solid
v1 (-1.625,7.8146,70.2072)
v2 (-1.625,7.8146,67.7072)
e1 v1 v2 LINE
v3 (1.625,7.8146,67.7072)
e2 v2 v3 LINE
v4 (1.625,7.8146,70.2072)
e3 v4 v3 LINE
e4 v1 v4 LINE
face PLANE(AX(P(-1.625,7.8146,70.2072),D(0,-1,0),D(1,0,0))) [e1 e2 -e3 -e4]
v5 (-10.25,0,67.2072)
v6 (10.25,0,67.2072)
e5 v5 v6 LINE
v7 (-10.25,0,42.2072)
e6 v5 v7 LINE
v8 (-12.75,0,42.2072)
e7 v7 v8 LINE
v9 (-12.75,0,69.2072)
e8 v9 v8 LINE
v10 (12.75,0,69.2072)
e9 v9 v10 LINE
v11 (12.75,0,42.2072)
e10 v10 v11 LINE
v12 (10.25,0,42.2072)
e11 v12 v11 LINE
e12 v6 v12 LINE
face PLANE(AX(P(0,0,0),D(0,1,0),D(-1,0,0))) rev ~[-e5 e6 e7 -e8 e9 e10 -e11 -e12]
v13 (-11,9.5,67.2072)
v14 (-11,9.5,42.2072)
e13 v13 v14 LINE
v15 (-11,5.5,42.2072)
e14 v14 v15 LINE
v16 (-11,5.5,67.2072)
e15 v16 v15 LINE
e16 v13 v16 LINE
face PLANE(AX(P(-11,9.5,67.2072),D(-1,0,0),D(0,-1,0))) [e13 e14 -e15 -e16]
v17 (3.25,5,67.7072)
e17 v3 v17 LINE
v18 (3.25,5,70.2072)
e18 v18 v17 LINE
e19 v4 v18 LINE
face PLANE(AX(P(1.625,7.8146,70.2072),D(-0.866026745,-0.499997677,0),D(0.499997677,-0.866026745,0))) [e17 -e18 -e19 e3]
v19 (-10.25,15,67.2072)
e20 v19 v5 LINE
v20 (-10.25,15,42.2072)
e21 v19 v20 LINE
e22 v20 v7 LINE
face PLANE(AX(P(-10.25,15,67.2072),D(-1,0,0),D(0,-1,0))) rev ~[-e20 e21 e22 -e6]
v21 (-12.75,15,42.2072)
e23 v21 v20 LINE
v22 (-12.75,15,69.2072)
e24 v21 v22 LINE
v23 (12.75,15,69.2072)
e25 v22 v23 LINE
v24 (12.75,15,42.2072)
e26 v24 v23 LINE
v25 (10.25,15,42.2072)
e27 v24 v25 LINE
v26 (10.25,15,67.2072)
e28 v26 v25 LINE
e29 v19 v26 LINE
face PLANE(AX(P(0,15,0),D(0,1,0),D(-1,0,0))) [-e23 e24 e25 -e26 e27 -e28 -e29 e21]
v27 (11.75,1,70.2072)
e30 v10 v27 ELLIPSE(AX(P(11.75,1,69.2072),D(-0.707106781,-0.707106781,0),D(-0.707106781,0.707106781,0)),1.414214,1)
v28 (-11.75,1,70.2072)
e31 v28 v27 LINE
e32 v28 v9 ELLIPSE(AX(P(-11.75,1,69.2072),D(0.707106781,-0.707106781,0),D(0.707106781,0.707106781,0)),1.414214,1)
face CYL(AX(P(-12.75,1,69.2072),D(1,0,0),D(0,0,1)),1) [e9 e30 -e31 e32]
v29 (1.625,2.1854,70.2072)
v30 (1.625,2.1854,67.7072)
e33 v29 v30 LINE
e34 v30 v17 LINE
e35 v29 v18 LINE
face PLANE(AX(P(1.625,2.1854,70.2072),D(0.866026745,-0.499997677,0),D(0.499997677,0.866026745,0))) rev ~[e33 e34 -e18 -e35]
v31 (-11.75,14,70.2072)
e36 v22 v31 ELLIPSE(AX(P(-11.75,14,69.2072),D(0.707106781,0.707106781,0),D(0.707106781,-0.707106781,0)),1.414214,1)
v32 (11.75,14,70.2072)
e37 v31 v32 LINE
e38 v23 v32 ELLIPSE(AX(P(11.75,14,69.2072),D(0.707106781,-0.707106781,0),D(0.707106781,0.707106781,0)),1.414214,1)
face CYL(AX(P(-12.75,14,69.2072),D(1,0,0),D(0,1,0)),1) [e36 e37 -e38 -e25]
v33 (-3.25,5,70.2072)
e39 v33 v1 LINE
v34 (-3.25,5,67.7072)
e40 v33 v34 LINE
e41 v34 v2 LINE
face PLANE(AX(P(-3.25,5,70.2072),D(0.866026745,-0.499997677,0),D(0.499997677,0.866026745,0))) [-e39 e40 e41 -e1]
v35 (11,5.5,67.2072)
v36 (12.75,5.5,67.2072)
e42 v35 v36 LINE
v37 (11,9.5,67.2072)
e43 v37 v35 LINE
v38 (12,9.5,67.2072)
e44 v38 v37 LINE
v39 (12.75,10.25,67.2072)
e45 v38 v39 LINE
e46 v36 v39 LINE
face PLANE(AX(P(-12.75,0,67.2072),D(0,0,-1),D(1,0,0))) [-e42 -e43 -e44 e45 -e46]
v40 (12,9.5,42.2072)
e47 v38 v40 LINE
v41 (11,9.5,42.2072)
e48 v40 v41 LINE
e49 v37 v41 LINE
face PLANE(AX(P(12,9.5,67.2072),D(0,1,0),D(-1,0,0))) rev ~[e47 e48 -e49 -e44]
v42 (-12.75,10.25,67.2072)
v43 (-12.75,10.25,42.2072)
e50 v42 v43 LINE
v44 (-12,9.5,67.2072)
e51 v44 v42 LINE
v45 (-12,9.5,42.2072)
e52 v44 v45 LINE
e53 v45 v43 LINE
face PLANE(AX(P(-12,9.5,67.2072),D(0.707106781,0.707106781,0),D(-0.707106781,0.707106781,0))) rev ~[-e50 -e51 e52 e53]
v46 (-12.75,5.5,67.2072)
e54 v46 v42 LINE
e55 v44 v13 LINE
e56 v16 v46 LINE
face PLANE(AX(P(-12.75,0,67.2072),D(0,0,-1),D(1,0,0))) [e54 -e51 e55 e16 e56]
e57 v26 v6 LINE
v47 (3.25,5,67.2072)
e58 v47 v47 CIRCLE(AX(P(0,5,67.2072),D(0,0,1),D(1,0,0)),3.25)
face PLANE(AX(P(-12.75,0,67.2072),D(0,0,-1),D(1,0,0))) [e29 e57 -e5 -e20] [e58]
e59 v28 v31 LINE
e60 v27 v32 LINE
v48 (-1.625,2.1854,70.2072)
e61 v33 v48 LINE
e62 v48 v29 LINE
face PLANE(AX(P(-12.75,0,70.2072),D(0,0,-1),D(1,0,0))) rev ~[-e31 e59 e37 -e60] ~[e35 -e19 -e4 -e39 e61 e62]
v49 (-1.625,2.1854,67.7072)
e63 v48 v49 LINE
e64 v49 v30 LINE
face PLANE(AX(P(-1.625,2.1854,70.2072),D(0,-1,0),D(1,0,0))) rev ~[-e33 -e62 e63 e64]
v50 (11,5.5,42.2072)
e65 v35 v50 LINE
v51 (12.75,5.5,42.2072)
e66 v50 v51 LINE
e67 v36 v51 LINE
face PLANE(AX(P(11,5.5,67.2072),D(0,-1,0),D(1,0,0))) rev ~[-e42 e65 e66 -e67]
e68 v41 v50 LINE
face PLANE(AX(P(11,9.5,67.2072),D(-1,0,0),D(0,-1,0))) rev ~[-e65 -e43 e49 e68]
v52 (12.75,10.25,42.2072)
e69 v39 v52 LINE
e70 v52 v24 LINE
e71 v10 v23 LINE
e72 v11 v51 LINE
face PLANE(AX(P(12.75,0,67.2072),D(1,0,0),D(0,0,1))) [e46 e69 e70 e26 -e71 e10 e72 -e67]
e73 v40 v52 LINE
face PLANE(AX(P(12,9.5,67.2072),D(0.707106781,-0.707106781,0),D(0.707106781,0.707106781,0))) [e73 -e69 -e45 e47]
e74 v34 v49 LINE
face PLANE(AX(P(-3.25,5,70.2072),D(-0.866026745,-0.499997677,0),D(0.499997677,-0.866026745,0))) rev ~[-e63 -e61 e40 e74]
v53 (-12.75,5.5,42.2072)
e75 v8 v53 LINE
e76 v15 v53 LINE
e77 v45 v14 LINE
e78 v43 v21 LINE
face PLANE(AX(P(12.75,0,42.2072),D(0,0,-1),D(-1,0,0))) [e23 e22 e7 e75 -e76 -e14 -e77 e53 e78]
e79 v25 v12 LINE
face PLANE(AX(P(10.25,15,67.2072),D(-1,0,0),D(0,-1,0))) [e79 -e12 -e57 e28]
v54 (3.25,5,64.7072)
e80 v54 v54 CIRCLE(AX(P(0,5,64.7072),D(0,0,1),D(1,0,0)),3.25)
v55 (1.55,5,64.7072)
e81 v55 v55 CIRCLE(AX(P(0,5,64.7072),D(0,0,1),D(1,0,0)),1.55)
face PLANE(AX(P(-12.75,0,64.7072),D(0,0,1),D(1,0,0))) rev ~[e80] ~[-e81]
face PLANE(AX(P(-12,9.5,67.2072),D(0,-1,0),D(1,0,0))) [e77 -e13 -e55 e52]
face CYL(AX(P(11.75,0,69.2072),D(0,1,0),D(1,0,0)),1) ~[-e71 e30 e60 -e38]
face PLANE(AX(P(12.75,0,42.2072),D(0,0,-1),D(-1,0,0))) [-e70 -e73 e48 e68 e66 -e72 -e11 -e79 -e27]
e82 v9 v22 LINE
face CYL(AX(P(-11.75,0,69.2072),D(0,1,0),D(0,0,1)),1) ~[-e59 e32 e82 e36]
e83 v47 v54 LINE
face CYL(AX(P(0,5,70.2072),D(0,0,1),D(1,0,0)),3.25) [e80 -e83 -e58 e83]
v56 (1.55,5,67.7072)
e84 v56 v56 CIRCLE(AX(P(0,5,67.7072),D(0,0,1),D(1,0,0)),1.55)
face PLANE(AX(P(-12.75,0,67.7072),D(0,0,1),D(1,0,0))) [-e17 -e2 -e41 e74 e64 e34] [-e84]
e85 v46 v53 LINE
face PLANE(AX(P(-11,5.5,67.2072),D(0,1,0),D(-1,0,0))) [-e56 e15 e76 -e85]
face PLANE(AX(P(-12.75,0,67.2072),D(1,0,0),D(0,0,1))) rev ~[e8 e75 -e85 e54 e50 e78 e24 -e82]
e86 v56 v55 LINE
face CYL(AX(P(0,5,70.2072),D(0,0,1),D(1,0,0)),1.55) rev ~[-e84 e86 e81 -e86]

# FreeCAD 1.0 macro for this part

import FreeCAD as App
import Part
import Sketcher

V = App.Vector
Q = App.Units.Quantity


def edges_at(feature, points):
    """Names of the edges that pass closest to the given points."""
    edges = feature.Shape.Edges
    near = lambda p: min(range(len(edges)), key=lambda i: edges[i].distToShape(Part.Vertex(*p))[0])
    return sorted({f"Edge{near(p) + 1}" for p in points})

doc = App.newDocument("Part")
params = doc.addObject("Spreadsheet::Sheet", "Params")
for row, (alias, value) in enumerate([
    ("sketch1_height", "3 mm"),
    ("sketch1_width", "25.5 mm"),
    ("pad1_length", "15 mm"),
    ("sketch2_height", "5.5 mm"),
    ("sketch2_width", "1 mm"),
    ("sketch2_height2", "4 mm"),
    ("sketch2_width2", "2.5 mm"),
    ("pad2_length", "25 mm"),
    ("sketch3_diameter", "6.5 mm"),
    ("pad3_length", "5.5 mm"),
    ("sketch4_diameter", "3.1 mm"),
    ("pocket1_length", "5.5 mm"),
    ("sketch5_diameter", "3.1 mm"),
    ("sketch5_width", "3.25 mm"),
    ("pocket2_length", "2.5 mm"),
    ("fillet_radius", "1 mm"),
], start=1):
    params.set(f"A{row}", alias)
    params.set(f"B{row}", "=" + value)
    params.setAlias(f"B{row}", alias)

body = doc.addObject("PartDesign::Body", "Body")

# Sketch on XZ plane
sketch1 = doc.addObject("Sketcher::SketchObject", "Sketch")
body.addObject(sketch1)
sketch1.AttachmentSupport = (doc.XZ_Plane, [""])
sketch1.MapMode = "FlatFace"
sketch1.addGeometry(Part.LineSegment(V(12.75, 70.2072, 0), V(12.75, 67.2072, 0)), False)
sketch1.addGeometry(Part.LineSegment(V(12.75, 67.2072, 0), V(-12.75, 67.2072, 0)), False)
sketch1.addGeometry(Part.LineSegment(V(-12.75, 67.2072, 0), V(-12.75, 70.2072, 0)), False)
sketch1.addGeometry(Part.LineSegment(V(-12.75, 70.2072, 0), V(12.75, 70.2072, 0)), False)
sketch1.addConstraint(Sketcher.Constraint("Coincident", 0, 2, 1, 1))
sketch1.addConstraint(Sketcher.Constraint("Coincident", 1, 2, 2, 1))
sketch1.addConstraint(Sketcher.Constraint("Coincident", 2, 2, 3, 1))
sketch1.addConstraint(Sketcher.Constraint("Coincident", 3, 2, 0, 1))
sketch1.addConstraint(Sketcher.Constraint("Vertical", 0))
sketch1.addConstraint(Sketcher.Constraint("Horizontal", 1))
sketch1.addConstraint(Sketcher.Constraint("Vertical", 2))
sketch1.addConstraint(Sketcher.Constraint("Horizontal", 3))
sketch1.addConstraint(Sketcher.Constraint("DistanceY", 0, 2, 0, 1, Q("3 mm")))
sketch1.addConstraint(Sketcher.Constraint("DistanceX", 1, 2, 1, 1, Q("25.5 mm")))
sketch1.addConstraint(Sketcher.Constraint("DistanceX", -1, 1, 0, 2, Q("12.75 mm")))
sketch1.addConstraint(Sketcher.Constraint("DistanceY", -1, 1, 0, 2, Q("67.2072 mm")))
sketch1.setExpression("Constraints[8]", "Params.sketch1_height")
sketch1.setExpression("Constraints[9]", "Params.sketch1_width")
pad1 = doc.addObject("PartDesign::Pad", "Pad")
body.addObject(pad1)
pad1.Profile = sketch1
pad1.setExpression("Length", "Params.pad1_length")
pad1.Reversed = True

# Sketch on XY plane
sketch2 = doc.addObject("Sketcher::SketchObject", "Sketch001")
body.addObject(sketch2)
sketch2.AttachmentSupport = (doc.XY_Plane, [""])
sketch2.MapMode = "FlatFace"
sketch2.AttachmentOffset = App.Placement(V(0, 0, 67.2072), App.Rotation())
sketch2.addGeometry(Part.LineSegment(V(10.25, 15, 0), V(12.75, 15, 0)), False)
sketch2.addGeometry(Part.LineSegment(V(12.75, 15, 0), V(12.75, 10.25, 0)), False)
sketch2.addGeometry(Part.LineSegment(V(12.75, 10.25, 0), V(12, 9.5, 0)), False)
sketch2.addGeometry(Part.LineSegment(V(12, 9.5, 0), V(11, 9.5, 0)), False)
sketch2.addGeometry(Part.LineSegment(V(11, 9.5, 0), V(11, 5.5, 0)), False)
sketch2.addGeometry(Part.LineSegment(V(11, 5.5, 0), V(12.75, 5.5, 0)), False)
sketch2.addGeometry(Part.LineSegment(V(12.75, 5.5, 0), V(12.75, 0, 0)), False)
sketch2.addGeometry(Part.LineSegment(V(12.75, 0, 0), V(10.25, 0, 0)), False)
sketch2.addGeometry(Part.LineSegment(V(10.25, 0, 0), V(10.25, 15, 0)), False)
sketch2.addGeometry(Part.LineSegment(V(-12.75, 10.25, 0), V(-12.75, 15, 0)), False)
sketch2.addGeometry(Part.LineSegment(V(-12.75, 15, 0), V(-10.25, 15, 0)), False)
sketch2.addGeometry(Part.LineSegment(V(-10.25, 15, 0), V(-10.25, 0, 0)), False)
sketch2.addGeometry(Part.LineSegment(V(-10.25, 0, 0), V(-12.75, 0, 0)), False)
sketch2.addGeometry(Part.LineSegment(V(-12.75, 0, 0), V(-12.75, 5.5, 0)), False)
sketch2.addGeometry(Part.LineSegment(V(-12.75, 5.5, 0), V(-11, 5.5, 0)), False)
sketch2.addGeometry(Part.LineSegment(V(-11, 5.5, 0), V(-11, 9.5, 0)), False)
sketch2.addGeometry(Part.LineSegment(V(-11, 9.5, 0), V(-12, 9.5, 0)), False)
sketch2.addGeometry(Part.LineSegment(V(-12, 9.5, 0), V(-12.75, 10.25, 0)), False)
sketch2.addConstraint(Sketcher.Constraint("Coincident", 0, 2, 1, 1))
sketch2.addConstraint(Sketcher.Constraint("Coincident", 1, 2, 2, 1))
sketch2.addConstraint(Sketcher.Constraint("Coincident", 2, 2, 3, 1))
sketch2.addConstraint(Sketcher.Constraint("Coincident", 3, 2, 4, 1))
sketch2.addConstraint(Sketcher.Constraint("Coincident", 4, 2, 5, 1))
sketch2.addConstraint(Sketcher.Constraint("Coincident", 5, 2, 6, 1))
sketch2.addConstraint(Sketcher.Constraint("Coincident", 6, 2, 7, 1))
sketch2.addConstraint(Sketcher.Constraint("Coincident", 7, 2, 8, 1))
sketch2.addConstraint(Sketcher.Constraint("Coincident", 8, 2, 0, 1))
sketch2.addConstraint(Sketcher.Constraint("Coincident", 9, 2, 10, 1))
sketch2.addConstraint(Sketcher.Constraint("Coincident", 10, 2, 11, 1))
sketch2.addConstraint(Sketcher.Constraint("Coincident", 11, 2, 12, 1))
sketch2.addConstraint(Sketcher.Constraint("Coincident", 12, 2, 13, 1))
sketch2.addConstraint(Sketcher.Constraint("Coincident", 13, 2, 14, 1))
sketch2.addConstraint(Sketcher.Constraint("Coincident", 14, 2, 15, 1))
sketch2.addConstraint(Sketcher.Constraint("Coincident", 15, 2, 16, 1))
sketch2.addConstraint(Sketcher.Constraint("Coincident", 16, 2, 17, 1))
sketch2.addConstraint(Sketcher.Constraint("Coincident", 17, 2, 9, 1))
sketch2.addConstraint(Sketcher.Constraint("Horizontal", 0))
sketch2.addConstraint(Sketcher.Constraint("Vertical", 1))
sketch2.addConstraint(Sketcher.Constraint("Horizontal", 3))
sketch2.addConstraint(Sketcher.Constraint("Vertical", 4))
sketch2.addConstraint(Sketcher.Constraint("Horizontal", 5))
sketch2.addConstraint(Sketcher.Constraint("Vertical", 6))
sketch2.addConstraint(Sketcher.Constraint("Horizontal", 7))
sketch2.addConstraint(Sketcher.Constraint("Vertical", 8))
sketch2.addConstraint(Sketcher.Constraint("Vertical", 9))
sketch2.addConstraint(Sketcher.Constraint("Horizontal", 10))
sketch2.addConstraint(Sketcher.Constraint("Vertical", 11))
sketch2.addConstraint(Sketcher.Constraint("Horizontal", 12))
sketch2.addConstraint(Sketcher.Constraint("Vertical", 13))
sketch2.addConstraint(Sketcher.Constraint("Horizontal", 14))
sketch2.addConstraint(Sketcher.Constraint("Vertical", 15))
sketch2.addConstraint(Sketcher.Constraint("Horizontal", 16))
sketch2.addConstraint(Sketcher.Constraint("Symmetric", 7, 2, 11, 2, -1, 1))
sketch2.addConstraint(Sketcher.Constraint("Symmetric", 0, 2, 9, 2, -2))
sketch2.addConstraint(Sketcher.Constraint("Symmetric", 6, 2, 12, 2, -2))
sketch2.addConstraint(Sketcher.Constraint("Symmetric", 4, 2, 14, 2, -2))
sketch2.addConstraint(Sketcher.Constraint("Symmetric", 2, 2, 16, 2, -2))
sketch2.addConstraint(Sketcher.Constraint("Perpendicular", 2, 17))
sketch2.addConstraint(Sketcher.Constraint("Horizontal", 1, 2, 17, 2))
sketch2.addConstraint(Sketcher.Constraint("Vertical", 1, 2, 5, 2))
sketch2.addConstraint(Sketcher.Constraint("DistanceY", 6, 2, 6, 1, Q("5.5 mm")))
sketch2.addConstraint(Sketcher.Constraint("DistanceY", 2, 2, 0, 2, Q("5.5 mm")))
sketch2.addConstraint(Sketcher.Constraint("DistanceX", 10, 2, 8, 2, Q("20.5 mm")))
sketch2.addConstraint(Sketcher.Constraint("DistanceX", 3, 2, 3, 1, Q("1 mm")))
sketch2.addConstraint(Sketcher.Constraint("DistanceY", 4, 2, 4, 1, Q("4 mm")))
sketch2.addConstraint(Sketcher.Constraint("DistanceX", 0, 1, 0, 2, Q("2.5 mm")))
sketch2.addConstraint(Sketcher.Constraint("DistanceX", -1, 1, 2, 2, Q("12 mm")))
sketch2.setExpression("Constraints[42]", "Params.sketch2_height")
sketch2.setExpression("Constraints[45]", "Params.sketch2_width")
sketch2.setExpression("Constraints[46]", "Params.sketch2_height2")
sketch2.setExpression("Constraints[47]", "Params.sketch2_width2")
pad2 = doc.addObject("PartDesign::Pad", "Pad001")
body.addObject(pad2)
pad2.Profile = sketch2
pad2.setExpression("Length", "Params.pad2_length")
pad2.Reversed = True

# Sketch on XY plane
sketch3 = doc.addObject("Sketcher::SketchObject", "Sketch002")
body.addObject(sketch3)
sketch3.AttachmentSupport = (doc.XY_Plane, [""])
sketch3.MapMode = "FlatFace"
sketch3.AttachmentOffset = App.Placement(V(0, 0, 70.2072), App.Rotation())
sketch3.addGeometry(Part.Circle(V(0, 5, 0), V(0, 0, 1), 3.25), False)
sketch3.addConstraint(Sketcher.Constraint("PointOnObject", 0, 3, -2))
sketch3.addConstraint(Sketcher.Constraint("Diameter", 0, Q("6.5 mm")))
sketch3.addConstraint(Sketcher.Constraint("DistanceY", -1, 1, 0, 3, Q("5 mm")))
sketch3.setExpression("Constraints[1]", "Params.sketch3_diameter")
pad3 = doc.addObject("PartDesign::Pad", "Pad002")
body.addObject(pad3)
pad3.Profile = sketch3
pad3.setExpression("Length", "Params.pad3_length")
pad3.Reversed = True

# Sketch on XY plane
sketch4 = doc.addObject("Sketcher::SketchObject", "Sketch003")
body.addObject(sketch4)
sketch4.AttachmentSupport = (doc.XY_Plane, [""])
sketch4.MapMode = "FlatFace"
sketch4.AttachmentOffset = App.Placement(V(0, 0, 70.2072), App.Rotation())
sketch4.addGeometry(Part.Circle(V(0, 5, 0), V(0, 0, 1), 1.55), False)
sketch4.addConstraint(Sketcher.Constraint("PointOnObject", 0, 3, -2))
sketch4.addConstraint(Sketcher.Constraint("Diameter", 0, Q("3.1 mm")))
sketch4.addConstraint(Sketcher.Constraint("DistanceY", -1, 1, 0, 3, Q("5 mm")))
sketch4.setExpression("Constraints[1]", "Params.sketch4_diameter")
pocket1 = doc.addObject("PartDesign::Pocket", "Pocket")
body.addObject(pocket1)
pocket1.Profile = sketch4
pocket1.setExpression("Length", "Params.pocket1_length")

# Sketch on XY plane
sketch5 = doc.addObject("Sketcher::SketchObject", "Sketch004")
body.addObject(sketch5)
sketch5.AttachmentSupport = (doc.XY_Plane, [""])
sketch5.MapMode = "FlatFace"
sketch5.AttachmentOffset = App.Placement(V(0, 0, 70.2072), App.Rotation())
sketch5.addGeometry(Part.LineSegment(V(1.625, 2.1854, 0), V(3.25, 5, 0)), False)
sketch5.addGeometry(Part.LineSegment(V(3.25, 5, 0), V(1.625, 7.8146, 0)), False)
sketch5.addGeometry(Part.LineSegment(V(1.625, 7.8146, 0), V(-1.625, 7.8146, 0)), False)
sketch5.addGeometry(Part.LineSegment(V(-1.625, 7.8146, 0), V(-3.25, 5, 0)), False)
sketch5.addGeometry(Part.LineSegment(V(-3.25, 5, 0), V(-1.625, 2.1854, 0)), False)
sketch5.addGeometry(Part.LineSegment(V(-1.625, 2.1854, 0), V(1.625, 2.1854, 0)), False)
sketch5.addGeometry(Part.Circle(V(0, 5, 0), V(0, 0, 1), 1.55), False)
sketch5.addConstraint(Sketcher.Constraint("Coincident", 0, 2, 1, 1))
sketch5.addConstraint(Sketcher.Constraint("Coincident", 1, 2, 2, 1))
sketch5.addConstraint(Sketcher.Constraint("Coincident", 2, 2, 3, 1))
sketch5.addConstraint(Sketcher.Constraint("Coincident", 3, 2, 4, 1))
sketch5.addConstraint(Sketcher.Constraint("Coincident", 4, 2, 5, 1))
sketch5.addConstraint(Sketcher.Constraint("Coincident", 5, 2, 0, 1))
sketch5.addConstraint(Sketcher.Constraint("Horizontal", 2))
sketch5.addConstraint(Sketcher.Constraint("Horizontal", 5))
sketch5.addConstraint(Sketcher.Constraint("Symmetric", 0, 2, 3, 2, -2))
sketch5.addConstraint(Sketcher.Constraint("PointOnObject", 6, 3, -2))
sketch5.addConstraint(Sketcher.Constraint("Parallel", 0, 3))
sketch5.addConstraint(Sketcher.Constraint("Parallel", 1, 4))
sketch5.addConstraint(Sketcher.Constraint("Horizontal", 6, 3, 0, 2))
sketch5.addConstraint(Sketcher.Constraint("Vertical", 2, 2, 4, 2))
sketch5.addConstraint(Sketcher.Constraint("Vertical", 1, 2, 5, 2))
sketch5.addConstraint(Sketcher.Constraint("Diameter", 6, Q("3.1 mm")))
sketch5.addConstraint(Sketcher.Constraint("Angle", 0, Q("60.0002 deg")))
sketch5.addConstraint(Sketcher.Constraint("DistanceY", -1, 1, 6, 3, Q("5 mm")))
sketch5.addConstraint(Sketcher.Constraint("DistanceX", 3, 2, 0, 2, Q("6.5 mm")))
sketch5.addConstraint(Sketcher.Constraint("DistanceX", 2, 2, 2, 1, Q("3.25 mm")))
sketch5.setExpression("Constraints[15]", "Params.sketch5_diameter")
sketch5.setExpression("Constraints[19]", "Params.sketch5_width")
pocket2 = doc.addObject("PartDesign::Pocket", "Pocket001")
body.addObject(pocket2)
pocket2.Profile = sketch5
pocket2.setExpression("Length", "Params.pocket2_length")
doc.recompute()

fillet = doc.addObject("PartDesign::Fillet", "Fillet")
body.addObject(fillet)
fillet.Base = (pocket2, edges_at(pocket2, [
    (0, 15, 70.207),
    (12.75, 7.5, 70.207),
    (0, 0, 70.207),
    (-12.75, 7.5, 70.207),
]))
fillet.setExpression("Radius", "Params.fillet_radius")

doc.recompute()
